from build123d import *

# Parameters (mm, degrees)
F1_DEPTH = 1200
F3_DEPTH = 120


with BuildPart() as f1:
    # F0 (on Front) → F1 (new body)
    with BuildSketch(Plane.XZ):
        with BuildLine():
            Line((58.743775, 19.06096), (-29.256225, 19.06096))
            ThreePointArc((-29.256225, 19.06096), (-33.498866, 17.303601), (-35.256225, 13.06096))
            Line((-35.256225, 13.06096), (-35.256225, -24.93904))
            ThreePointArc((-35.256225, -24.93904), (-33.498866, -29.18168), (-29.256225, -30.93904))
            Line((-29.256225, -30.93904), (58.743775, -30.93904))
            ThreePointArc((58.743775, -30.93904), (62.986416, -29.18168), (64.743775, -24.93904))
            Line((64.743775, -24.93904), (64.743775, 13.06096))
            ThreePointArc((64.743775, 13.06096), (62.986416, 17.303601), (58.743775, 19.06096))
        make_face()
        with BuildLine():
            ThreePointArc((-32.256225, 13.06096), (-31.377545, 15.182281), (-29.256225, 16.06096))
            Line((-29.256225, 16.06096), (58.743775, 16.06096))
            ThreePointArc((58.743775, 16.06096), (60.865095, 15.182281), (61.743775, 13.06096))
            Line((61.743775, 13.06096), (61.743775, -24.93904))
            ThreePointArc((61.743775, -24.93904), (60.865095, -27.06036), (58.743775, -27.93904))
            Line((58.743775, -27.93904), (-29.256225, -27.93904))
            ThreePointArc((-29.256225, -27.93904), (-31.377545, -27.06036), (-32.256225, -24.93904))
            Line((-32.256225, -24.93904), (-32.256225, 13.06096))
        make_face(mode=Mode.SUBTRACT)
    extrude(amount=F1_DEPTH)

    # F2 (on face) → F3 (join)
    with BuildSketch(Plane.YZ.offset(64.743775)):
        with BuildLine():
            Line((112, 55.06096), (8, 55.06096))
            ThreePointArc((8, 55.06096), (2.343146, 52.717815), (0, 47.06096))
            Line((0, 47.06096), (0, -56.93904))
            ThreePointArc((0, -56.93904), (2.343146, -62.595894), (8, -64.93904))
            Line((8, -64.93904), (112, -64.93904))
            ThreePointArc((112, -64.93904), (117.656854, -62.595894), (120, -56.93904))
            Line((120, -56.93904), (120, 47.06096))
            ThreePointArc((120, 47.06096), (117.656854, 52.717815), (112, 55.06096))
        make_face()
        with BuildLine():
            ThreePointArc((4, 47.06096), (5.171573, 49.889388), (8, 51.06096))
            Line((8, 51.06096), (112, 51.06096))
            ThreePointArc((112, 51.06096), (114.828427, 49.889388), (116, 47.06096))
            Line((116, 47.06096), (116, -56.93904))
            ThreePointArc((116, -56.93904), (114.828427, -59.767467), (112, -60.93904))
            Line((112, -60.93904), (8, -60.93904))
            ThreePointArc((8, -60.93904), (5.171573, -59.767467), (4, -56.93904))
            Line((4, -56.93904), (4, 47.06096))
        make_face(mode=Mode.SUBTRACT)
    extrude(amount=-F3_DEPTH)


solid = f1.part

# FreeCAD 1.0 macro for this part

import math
import FreeCAD as App
import Part
import Sketcher

V = App.Vector
Q = App.Units.Quantity

doc = App.newDocument("Part")
body = doc.addObject("PartDesign::Body", "Body")

# Sketch on XZ plane
sketch1 = body.newObject("Sketcher::SketchObject", "Sketch")
sketch1.AttachmentSupport = (doc.getObject("XZ_Plane"), [""])
sketch1.MapMode = "FlatFace"
sketch1.addGeometry([
    Part.LineSegment(V(58.743775, 19.06096, 0), V(-29.256225, 19.06096, 0)),  # 0
    Part.ArcOfCircle(Part.Circle(V(-29.256226, 13.060961, 0), V(0, 0, 1), 5.999999), math.radians(89.99999), math.radians(180.00001)),  # 1
    Part.LineSegment(V(-35.256225, 13.06096, 0), V(-35.256225, -24.93904, 0)),  # 2
    Part.ArcOfCircle(Part.Circle(V(-29.256224, -24.939039, 0), V(0, 0, 1), 6.000001), math.radians(-179.999994), math.radians(-90.000006)),  # 3
    Part.LineSegment(V(-29.256225, -30.93904, 0), V(58.743775, -30.93904, 0)),  # 4
    Part.ArcOfCircle(Part.Circle(V(58.743774, -24.939039, 0), V(0, 0, 1), 6.000001), math.radians(-89.999994), math.radians(-0.000006)),  # 5
    Part.LineSegment(V(64.743775, -24.93904, 0), V(64.743775, 13.06096, 0)),  # 6
    Part.ArcOfCircle(Part.Circle(V(58.743776, 13.060961, 0), V(0, 0, 1), 5.999999), math.radians(-0.00001), math.radians(90.00001)),  # 7
    Part.LineSegment(V(-32.256225, -24.93904, 0), V(-32.256225, 13.06096, 0)),  # 8
    Part.ArcOfCircle(Part.Circle(V(-29.256226, 13.060961, 0), V(0, 0, 1), 2.999999), math.radians(89.99999), math.radians(180.00001)),  # 9
    Part.LineSegment(V(-29.256225, 16.06096, 0), V(58.743775, 16.06096, 0)),  # 10
    Part.ArcOfCircle(Part.Circle(V(58.743776, 13.060961, 0), V(0, 0, 1), 2.999999), math.radians(-0.00001), math.radians(90.00001)),  # 11
    Part.LineSegment(V(61.743775, 13.06096, 0), V(61.743775, -24.93904, 0)),  # 12
    Part.ArcOfCircle(Part.Circle(V(58.743774, -24.939039, 0), V(0, 0, 1), 3.000001), math.radians(-89.999978), math.radians(-0.000022)),  # 13
    Part.LineSegment(V(58.743775, -27.93904, 0), V(-29.256225, -27.93904, 0)),  # 14
    Part.ArcOfCircle(Part.Circle(V(-29.256224, -24.939039, 0), V(0, 0, 1), 3.000001), math.radians(-179.999978), math.radians(-90.000022)),  # 15
], False)
sketch1.addConstraint([
    Sketcher.Constraint("Tangent", 0, 2, 1, 1),
    Sketcher.Constraint("Tangent", 1, 2, 2, 1),
    Sketcher.Constraint("Tangent", 2, 2, 3, 1),
    Sketcher.Constraint("Tangent", 3, 2, 4, 1),
    Sketcher.Constraint("Tangent", 4, 2, 5, 1),
    Sketcher.Constraint("Tangent", 5, 2, 6, 1),
    Sketcher.Constraint("Tangent", 6, 2, 7, 1),
    Sketcher.Constraint("Tangent", 7, 2, 0, 1),
    Sketcher.Constraint("Tangent", 8, 2, 9, 2),
    Sketcher.Constraint("Tangent", 9, 1, 10, 1),
    Sketcher.Constraint("Tangent", 10, 2, 11, 2),
    Sketcher.Constraint("Tangent", 11, 1, 12, 1),
    Sketcher.Constraint("Tangent", 12, 2, 13, 2),
    Sketcher.Constraint("Tangent", 13, 1, 14, 1),
    Sketcher.Constraint("Tangent", 14, 2, 15, 2),
    Sketcher.Constraint("Tangent", 15, 1, 8, 1),
    Sketcher.Constraint("Horizontal", 0),
    Sketcher.Constraint("Vertical", 2),
    Sketcher.Constraint("Horizontal", 4),
    Sketcher.Constraint("Vertical", 6),
    Sketcher.Constraint("Vertical", 8),
    Sketcher.Constraint("Horizontal", 10),
    Sketcher.Constraint("Vertical", 12),
    Sketcher.Constraint("Horizontal", 14),
    Sketcher.Constraint("Coincident", 9, 3, 1, 3),
    Sketcher.Constraint("Coincident", 11, 3, 7, 3),
    Sketcher.Constraint("Coincident", 13, 3, 5, 3),
    Sketcher.Constraint("Equal", 1, 3),
    Sketcher.Constraint("Equal", 3, 5),
    Sketcher.Constraint("Equal", 5, 7),
    Sketcher.Constraint("Equal", 13, 15),
    Sketcher.Constraint("Radius", 1, Q("5.999999 mm")),
    Sketcher.Constraint("Radius", 9, Q("2.999999 mm")),
    Sketcher.Constraint("DistanceX", 0, 2, 0, 1, Q("88 mm")),
    Sketcher.Constraint("DistanceY", 2, 2, 2, 1, Q("38 mm")),
    Sketcher.Constraint("DistanceY", -1, 1, 1, 3, Q("13.060961 mm")),
    Sketcher.Constraint("DistanceX", 1, 3, -1, 1, Q("29.256226 mm")),
])
pad1 = body.newObject("PartDesign::Pad", "Pad")
pad1.Profile = sketch1
pad1.Length = 1200

# Sketch on YZ plane
sketch2 = body.newObject("Sketcher::SketchObject", "Sketch001")
sketch2.AttachmentSupport = (doc.getObject("YZ_Plane"), [""])
sketch2.MapMode = "FlatFace"
sketch2.AttachmentOffset = App.Placement(V(0, 0, 64.743775), App.Rotation())
sketch2.addGeometry([
    Part.LineSegment(V(112, 55.06096, 0), V(8, 55.06096, 0)),  # 0
    Part.ArcOfCircle(Part.Circle(V(7.999999, 47.060961, 0), V(0, 0, 1), 7.999999), math.radians(89.999994), math.radians(180.000006)),  # 1
    Part.LineSegment(V(0, 47.06096, 0), V(0, -56.93904, 0)),  # 2
    Part.ArcOfCircle(Part.Circle(V(8.000001, -56.939039, 0), V(0, 0, 1), 8.000001), math.radians(-179.999994), math.radians(-90.000006)),  # 3
    Part.LineSegment(V(8, -64.93904, 0), V(112, -64.93904, 0)),  # 4
    Part.ArcOfCircle(Part.Circle(V(111.999999, -56.939039, 0), V(0, 0, 1), 8.000001), math.radians(-89.999994), math.radians(-0.000006)),  # 5
    Part.LineSegment(V(120, -56.93904, 0), V(120, 47.06096, 0)),  # 6
    Part.ArcOfCircle(Part.Circle(V(112.000001, 47.060961, 0), V(0, 0, 1), 7.999999), math.radians(-0.000006), math.radians(90.000006)),  # 7
    Part.LineSegment(V(4, -56.93904, 0), V(4, 47.06096, 0)),  # 8
    Part.ArcOfCircle(Part.Circle(V(7.999999, 47.060961, 0), V(0, 0, 1), 3.999999), math.radians(89.999982), math.radians(180.000018)),  # 9
    Part.LineSegment(V(8, 51.06096, 0), V(112, 51.06096, 0)),  # 10
    Part.ArcOfCircle(Part.Circle(V(112.000001, 47.060961, 0), V(0, 0, 1), 3.999999), math.radians(-0.000018), math.radians(90.000018)),  # 11
    Part.LineSegment(V(116, 47.06096, 0), V(116, -56.93904, 0)),  # 12
    Part.ArcOfCircle(Part.Circle(V(112, -56.93904, 0), V(0, 0, 1), 4), math.radians(-89.999994), math.radians(-0.000006)),  # 13
    Part.LineSegment(V(112, -60.93904, 0), V(8, -60.93904, 0)),  # 14
    Part.ArcOfCircle(Part.Circle(V(8, -56.93904, 0), V(0, 0, 1), 4), math.radians(-179.999994), math.radians(-90.000006)),  # 15
], False)
sketch2.addConstraint([
    Sketcher.Constraint("Tangent", 0, 2, 1, 1),
    Sketcher.Constraint("Tangent", 1, 2, 2, 1),
    Sketcher.Constraint("Tangent", 2, 2, 3, 1),
    Sketcher.Constraint("Tangent", 3, 2, 4, 1),
    Sketcher.Constraint("Tangent", 4, 2, 5, 1),
    Sketcher.Constraint("Tangent", 5, 2, 6, 1),
    Sketcher.Constraint("Tangent", 6, 2, 7, 1),
    Sketcher.Constraint("Tangent", 7, 2, 0, 1),
    Sketcher.Constraint("Tangent", 8, 2, 9, 2),
    Sketcher.Constraint("Tangent", 9, 1, 10, 1),
    Sketcher.Constraint("Tangent", 10, 2, 11, 2),
    Sketcher.Constraint("Tangent", 11, 1, 12, 1),
    Sketcher.Constraint("Tangent", 12, 2, 13, 2),
    Sketcher.Constraint("Tangent", 13, 1, 14, 1),
    Sketcher.Constraint("Tangent", 14, 2, 15, 2),
    Sketcher.Constraint("Tangent", 15, 1, 8, 1),
    Sketcher.Constraint("Horizontal", 0),
    Sketcher.Constraint("Vertical", 2),
    Sketcher.Constraint("Horizontal", 4),
    Sketcher.Constraint("Vertical", 6),
    Sketcher.Constraint("Vertical", 8),
    Sketcher.Constraint("Horizontal", 10),
    Sketcher.Constraint("Vertical", 12),
    Sketcher.Constraint("Horizontal", 14),
    Sketcher.Constraint("Coincident", 9, 3, 1, 3),
    Sketcher.Constraint("Coincident", 11, 3, 7, 3),
    Sketcher.Constraint("Coincident", 13, 3, 5, 3),
    Sketcher.Constraint("Equal", 1, 3),
    Sketcher.Constraint("Equal", 3, 5),
    Sketcher.Constraint("Equal", 5, 7),
    Sketcher.Constraint("Equal", 13, 15),
    Sketcher.Constraint("PointOnObject", 1, 2, -2),
    Sketcher.Constraint("Equal", 14, 2),
    Sketcher.Constraint("Radius", 1, Q("7.999999 mm")),
    Sketcher.Constraint("Radius", 9, Q("3.999999 mm")),
    Sketcher.Constraint("DistanceX", 0, 2, 0, 1, Q("104 mm")),
    Sketcher.Constraint("DistanceY", -1, 1, 1, 3, Q("47.060961 mm")),
])
pad2 = body.newObject("PartDesign::Pad", "Pad001")
pad2.Profile = sketch2
pad2.Length = 120
pad2.Reversed = True

doc.recompute()
